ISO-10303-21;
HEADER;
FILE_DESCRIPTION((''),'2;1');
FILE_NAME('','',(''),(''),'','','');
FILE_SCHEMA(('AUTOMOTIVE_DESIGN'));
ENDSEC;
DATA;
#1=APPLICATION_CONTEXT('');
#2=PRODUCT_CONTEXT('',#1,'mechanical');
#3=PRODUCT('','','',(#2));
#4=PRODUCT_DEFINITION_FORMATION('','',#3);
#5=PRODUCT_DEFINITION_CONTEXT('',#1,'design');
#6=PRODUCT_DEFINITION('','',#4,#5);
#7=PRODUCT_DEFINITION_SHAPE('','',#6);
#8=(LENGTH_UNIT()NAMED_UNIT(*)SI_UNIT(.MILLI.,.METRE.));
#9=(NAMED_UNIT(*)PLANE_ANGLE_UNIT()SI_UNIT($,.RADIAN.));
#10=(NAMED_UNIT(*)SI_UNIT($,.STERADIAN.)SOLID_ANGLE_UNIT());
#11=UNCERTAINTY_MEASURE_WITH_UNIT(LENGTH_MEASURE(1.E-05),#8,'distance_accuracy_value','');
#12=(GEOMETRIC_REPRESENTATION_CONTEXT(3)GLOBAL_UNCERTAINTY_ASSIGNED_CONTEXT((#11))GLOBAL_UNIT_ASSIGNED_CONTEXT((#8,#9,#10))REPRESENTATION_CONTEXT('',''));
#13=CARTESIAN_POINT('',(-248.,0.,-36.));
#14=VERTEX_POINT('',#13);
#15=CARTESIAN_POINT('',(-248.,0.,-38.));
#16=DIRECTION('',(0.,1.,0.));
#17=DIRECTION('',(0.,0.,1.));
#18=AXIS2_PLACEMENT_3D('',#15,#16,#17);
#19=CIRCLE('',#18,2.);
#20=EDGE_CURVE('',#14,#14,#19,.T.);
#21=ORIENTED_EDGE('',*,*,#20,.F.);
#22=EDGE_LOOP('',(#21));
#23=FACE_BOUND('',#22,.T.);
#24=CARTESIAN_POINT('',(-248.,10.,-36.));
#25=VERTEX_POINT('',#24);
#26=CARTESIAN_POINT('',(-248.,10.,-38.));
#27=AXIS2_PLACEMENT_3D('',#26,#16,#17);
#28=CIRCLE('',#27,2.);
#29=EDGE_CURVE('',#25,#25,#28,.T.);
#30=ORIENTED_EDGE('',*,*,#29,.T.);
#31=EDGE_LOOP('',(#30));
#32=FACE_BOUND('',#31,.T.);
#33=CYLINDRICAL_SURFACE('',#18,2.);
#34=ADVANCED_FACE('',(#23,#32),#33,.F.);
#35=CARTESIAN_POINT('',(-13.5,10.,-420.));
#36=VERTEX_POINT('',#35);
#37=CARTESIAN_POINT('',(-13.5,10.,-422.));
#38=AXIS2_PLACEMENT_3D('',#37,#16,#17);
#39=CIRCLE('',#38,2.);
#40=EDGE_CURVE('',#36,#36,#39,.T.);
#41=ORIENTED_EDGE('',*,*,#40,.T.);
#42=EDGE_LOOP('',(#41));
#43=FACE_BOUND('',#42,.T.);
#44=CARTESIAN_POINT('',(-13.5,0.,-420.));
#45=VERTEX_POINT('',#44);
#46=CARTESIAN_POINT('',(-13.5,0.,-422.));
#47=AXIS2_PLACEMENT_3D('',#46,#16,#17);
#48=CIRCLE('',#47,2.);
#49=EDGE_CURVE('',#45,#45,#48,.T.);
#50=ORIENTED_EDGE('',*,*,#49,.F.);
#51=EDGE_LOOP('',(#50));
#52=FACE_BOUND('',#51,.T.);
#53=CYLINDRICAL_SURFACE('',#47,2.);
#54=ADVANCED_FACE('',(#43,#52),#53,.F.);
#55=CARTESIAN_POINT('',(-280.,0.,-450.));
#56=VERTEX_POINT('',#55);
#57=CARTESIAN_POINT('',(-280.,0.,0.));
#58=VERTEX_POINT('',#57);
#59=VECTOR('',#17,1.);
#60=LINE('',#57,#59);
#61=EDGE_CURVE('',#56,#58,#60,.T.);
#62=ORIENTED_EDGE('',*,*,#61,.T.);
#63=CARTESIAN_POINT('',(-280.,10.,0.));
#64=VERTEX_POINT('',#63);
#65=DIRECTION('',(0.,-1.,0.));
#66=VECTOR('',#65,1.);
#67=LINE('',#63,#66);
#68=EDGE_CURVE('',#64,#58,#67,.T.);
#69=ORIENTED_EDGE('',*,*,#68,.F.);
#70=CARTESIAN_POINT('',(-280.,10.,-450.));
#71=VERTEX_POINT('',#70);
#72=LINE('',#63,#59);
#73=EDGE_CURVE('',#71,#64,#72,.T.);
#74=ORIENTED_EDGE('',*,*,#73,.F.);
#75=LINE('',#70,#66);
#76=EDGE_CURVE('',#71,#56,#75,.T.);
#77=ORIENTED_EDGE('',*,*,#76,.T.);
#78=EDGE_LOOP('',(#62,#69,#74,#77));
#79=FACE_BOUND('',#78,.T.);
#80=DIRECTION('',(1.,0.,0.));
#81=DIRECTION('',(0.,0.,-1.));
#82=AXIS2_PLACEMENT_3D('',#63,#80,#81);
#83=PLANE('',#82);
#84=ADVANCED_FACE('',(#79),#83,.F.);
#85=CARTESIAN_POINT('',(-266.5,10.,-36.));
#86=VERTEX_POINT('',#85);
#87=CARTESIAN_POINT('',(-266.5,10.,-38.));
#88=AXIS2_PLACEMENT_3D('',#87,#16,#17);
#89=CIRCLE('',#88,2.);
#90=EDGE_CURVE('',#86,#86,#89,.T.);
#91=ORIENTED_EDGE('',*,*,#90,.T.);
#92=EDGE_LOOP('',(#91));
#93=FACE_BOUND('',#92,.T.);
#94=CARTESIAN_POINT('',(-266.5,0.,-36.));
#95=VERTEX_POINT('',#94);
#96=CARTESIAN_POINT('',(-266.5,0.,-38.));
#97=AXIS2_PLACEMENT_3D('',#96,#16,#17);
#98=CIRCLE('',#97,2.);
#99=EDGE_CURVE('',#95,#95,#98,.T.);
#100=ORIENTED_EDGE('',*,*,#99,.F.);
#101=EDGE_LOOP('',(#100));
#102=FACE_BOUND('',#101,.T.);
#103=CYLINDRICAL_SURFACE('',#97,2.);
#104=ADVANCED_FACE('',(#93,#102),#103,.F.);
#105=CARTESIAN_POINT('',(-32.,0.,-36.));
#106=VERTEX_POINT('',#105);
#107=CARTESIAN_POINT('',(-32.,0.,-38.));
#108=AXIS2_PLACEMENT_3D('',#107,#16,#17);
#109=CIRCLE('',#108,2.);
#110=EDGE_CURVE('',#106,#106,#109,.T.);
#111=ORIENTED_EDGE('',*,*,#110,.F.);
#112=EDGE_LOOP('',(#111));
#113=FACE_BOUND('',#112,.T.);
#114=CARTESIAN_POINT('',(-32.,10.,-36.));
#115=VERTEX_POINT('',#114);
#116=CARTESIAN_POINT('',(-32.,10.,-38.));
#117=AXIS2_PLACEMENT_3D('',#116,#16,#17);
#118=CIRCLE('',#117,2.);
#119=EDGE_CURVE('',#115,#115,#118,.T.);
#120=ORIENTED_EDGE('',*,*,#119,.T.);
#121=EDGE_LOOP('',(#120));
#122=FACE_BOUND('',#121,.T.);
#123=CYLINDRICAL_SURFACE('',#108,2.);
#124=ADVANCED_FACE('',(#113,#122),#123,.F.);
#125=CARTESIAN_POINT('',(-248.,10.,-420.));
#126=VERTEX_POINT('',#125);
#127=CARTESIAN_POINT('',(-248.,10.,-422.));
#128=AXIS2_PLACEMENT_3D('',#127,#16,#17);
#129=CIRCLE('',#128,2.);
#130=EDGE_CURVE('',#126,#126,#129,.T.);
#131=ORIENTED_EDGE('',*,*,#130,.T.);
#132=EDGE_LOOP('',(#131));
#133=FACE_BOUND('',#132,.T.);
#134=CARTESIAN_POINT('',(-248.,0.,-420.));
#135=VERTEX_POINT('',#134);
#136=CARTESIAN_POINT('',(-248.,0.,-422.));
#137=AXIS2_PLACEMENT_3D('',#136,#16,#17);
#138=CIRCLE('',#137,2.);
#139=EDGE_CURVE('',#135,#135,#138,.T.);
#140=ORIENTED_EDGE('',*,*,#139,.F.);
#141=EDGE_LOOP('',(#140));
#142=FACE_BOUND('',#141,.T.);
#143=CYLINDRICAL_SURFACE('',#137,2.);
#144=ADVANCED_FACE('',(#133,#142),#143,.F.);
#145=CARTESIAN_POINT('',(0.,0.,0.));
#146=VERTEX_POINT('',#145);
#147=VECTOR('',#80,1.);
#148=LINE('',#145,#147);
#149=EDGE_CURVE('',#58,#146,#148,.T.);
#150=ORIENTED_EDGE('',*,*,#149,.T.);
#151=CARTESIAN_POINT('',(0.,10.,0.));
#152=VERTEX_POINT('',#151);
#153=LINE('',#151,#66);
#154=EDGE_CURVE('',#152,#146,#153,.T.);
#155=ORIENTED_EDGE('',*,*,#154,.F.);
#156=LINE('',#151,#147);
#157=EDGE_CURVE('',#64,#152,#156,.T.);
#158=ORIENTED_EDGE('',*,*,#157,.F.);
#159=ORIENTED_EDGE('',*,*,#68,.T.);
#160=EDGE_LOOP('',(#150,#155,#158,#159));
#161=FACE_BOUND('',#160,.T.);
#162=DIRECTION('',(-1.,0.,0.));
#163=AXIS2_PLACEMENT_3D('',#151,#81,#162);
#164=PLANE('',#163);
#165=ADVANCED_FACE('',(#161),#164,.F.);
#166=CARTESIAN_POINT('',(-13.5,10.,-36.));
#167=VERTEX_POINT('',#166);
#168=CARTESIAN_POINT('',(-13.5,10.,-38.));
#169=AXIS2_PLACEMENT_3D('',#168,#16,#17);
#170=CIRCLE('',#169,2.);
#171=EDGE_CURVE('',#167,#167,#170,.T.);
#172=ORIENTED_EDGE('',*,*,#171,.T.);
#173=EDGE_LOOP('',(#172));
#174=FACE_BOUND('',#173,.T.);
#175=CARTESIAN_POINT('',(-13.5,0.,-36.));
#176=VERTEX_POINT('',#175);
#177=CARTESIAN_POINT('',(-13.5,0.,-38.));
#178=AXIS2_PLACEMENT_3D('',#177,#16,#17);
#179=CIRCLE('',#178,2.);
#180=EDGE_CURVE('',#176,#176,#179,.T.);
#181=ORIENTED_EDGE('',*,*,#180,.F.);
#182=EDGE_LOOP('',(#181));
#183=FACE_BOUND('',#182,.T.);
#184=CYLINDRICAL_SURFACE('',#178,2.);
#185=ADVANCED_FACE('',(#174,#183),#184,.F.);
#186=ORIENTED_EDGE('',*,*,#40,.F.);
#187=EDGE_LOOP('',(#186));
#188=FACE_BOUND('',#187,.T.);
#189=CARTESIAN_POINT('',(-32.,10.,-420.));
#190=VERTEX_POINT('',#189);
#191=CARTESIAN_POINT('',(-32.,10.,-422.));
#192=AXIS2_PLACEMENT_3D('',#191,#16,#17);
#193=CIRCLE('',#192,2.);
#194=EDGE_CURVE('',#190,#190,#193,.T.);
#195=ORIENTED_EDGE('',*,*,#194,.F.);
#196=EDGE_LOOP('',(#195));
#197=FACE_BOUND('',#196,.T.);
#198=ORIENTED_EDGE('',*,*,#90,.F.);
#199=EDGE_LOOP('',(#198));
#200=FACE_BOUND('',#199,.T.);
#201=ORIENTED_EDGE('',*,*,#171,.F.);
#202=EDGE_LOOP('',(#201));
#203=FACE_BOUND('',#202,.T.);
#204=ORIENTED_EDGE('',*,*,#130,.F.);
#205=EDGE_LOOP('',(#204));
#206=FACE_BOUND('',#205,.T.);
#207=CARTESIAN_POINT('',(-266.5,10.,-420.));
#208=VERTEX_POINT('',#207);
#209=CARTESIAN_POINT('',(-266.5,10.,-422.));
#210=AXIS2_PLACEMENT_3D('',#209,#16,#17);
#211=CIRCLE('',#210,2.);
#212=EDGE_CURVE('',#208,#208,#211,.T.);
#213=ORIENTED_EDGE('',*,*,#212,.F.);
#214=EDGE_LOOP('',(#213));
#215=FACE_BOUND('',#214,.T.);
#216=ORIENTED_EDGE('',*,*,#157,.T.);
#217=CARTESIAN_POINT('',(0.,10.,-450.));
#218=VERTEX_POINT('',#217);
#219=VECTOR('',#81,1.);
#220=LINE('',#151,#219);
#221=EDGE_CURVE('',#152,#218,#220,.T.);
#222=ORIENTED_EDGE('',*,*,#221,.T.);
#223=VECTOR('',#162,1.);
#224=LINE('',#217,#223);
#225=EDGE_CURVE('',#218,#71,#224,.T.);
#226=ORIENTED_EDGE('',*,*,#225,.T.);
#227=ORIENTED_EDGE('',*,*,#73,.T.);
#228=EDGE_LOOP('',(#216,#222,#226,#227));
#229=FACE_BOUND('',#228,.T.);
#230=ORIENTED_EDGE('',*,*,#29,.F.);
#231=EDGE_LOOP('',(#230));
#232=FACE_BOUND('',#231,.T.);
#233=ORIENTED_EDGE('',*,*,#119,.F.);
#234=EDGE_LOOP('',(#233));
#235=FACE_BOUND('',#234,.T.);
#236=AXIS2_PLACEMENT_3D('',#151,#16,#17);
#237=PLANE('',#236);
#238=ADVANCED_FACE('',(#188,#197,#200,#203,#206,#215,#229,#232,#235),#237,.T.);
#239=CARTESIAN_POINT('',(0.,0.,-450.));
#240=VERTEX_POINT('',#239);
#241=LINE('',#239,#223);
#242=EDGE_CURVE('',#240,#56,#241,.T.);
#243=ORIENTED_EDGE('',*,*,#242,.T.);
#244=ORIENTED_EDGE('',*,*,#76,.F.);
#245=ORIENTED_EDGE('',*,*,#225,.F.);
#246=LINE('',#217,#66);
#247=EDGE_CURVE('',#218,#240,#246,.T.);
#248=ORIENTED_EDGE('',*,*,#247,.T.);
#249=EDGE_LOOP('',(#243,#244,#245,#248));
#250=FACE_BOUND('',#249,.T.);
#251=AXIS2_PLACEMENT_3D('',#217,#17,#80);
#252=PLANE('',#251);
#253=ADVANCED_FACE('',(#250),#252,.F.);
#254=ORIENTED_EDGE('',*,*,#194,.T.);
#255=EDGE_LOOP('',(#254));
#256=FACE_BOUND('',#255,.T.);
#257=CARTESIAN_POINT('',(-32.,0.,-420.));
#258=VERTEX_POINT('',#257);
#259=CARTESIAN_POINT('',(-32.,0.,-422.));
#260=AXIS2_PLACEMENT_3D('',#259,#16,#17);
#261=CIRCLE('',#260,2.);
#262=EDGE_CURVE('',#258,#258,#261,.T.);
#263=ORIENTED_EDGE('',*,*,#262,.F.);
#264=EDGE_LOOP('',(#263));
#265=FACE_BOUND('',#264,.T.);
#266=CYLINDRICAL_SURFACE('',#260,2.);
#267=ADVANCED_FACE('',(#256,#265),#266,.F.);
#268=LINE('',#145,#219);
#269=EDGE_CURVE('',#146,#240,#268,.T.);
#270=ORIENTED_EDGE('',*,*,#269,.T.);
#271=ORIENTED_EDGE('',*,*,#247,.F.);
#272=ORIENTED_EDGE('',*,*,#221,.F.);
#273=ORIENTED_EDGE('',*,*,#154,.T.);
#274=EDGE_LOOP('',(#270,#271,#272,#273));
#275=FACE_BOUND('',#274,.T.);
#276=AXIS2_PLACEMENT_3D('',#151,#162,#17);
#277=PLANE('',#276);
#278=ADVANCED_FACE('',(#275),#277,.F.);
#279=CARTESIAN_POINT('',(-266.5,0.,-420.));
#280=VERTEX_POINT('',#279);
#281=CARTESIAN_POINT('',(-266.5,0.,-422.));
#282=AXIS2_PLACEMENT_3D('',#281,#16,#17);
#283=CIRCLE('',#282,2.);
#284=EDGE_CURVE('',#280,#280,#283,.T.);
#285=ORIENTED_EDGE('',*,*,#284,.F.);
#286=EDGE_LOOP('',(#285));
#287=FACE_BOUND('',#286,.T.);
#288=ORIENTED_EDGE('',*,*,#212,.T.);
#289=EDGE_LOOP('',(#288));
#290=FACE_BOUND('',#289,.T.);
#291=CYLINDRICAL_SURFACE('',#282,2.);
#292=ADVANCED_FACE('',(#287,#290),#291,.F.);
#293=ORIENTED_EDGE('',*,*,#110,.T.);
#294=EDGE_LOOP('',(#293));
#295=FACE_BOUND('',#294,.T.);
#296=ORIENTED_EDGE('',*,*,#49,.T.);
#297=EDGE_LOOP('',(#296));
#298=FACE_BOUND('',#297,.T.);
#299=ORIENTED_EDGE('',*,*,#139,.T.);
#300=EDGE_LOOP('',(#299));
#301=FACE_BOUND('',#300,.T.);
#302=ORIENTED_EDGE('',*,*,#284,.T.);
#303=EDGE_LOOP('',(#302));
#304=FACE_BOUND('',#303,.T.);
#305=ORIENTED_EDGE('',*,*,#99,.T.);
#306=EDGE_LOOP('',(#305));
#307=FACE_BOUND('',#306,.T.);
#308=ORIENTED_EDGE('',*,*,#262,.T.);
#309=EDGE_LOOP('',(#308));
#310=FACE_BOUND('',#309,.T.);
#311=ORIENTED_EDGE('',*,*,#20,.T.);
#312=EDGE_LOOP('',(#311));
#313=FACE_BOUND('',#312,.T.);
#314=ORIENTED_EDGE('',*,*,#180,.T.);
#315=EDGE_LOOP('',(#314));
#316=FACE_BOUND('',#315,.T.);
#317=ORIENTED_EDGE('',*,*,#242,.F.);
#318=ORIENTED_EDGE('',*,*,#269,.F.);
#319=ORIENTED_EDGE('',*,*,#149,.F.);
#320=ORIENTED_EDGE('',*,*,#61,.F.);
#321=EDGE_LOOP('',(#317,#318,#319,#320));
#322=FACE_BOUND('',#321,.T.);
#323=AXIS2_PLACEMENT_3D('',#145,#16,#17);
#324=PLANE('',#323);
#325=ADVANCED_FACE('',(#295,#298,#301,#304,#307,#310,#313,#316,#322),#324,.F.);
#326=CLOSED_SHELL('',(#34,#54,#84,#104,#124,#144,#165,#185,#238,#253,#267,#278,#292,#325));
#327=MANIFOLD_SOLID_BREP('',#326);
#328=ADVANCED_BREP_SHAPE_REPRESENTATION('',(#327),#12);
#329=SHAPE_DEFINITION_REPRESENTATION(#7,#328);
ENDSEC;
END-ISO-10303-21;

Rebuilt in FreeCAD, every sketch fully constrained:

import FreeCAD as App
import Part
import Sketcher

V = App.Vector
Q = App.Units.Quantity


def add_polygon(sketch, points):
    """Adds a closed chain of lines whose ends are joined by coincident constraints."""
    first, n = sketch.GeometryCount, len(points)
    for a, b in zip(points, points[1:] + points[:1]):
        sketch.addGeometry(Part.LineSegment(App.Vector(*a, 0), App.Vector(*b, 0)), False)
    for i in range(n):
        sketch.addConstraint(Sketcher.Constraint("Coincident", first + i, 2, first + (i + 1) % n, 1))

doc = App.newDocument("Part")
body = doc.addObject("PartDesign::Body", "Body")

sketch1 = body.newObject("Sketcher::SketchObject", "Sketch")
sketch1.AttachmentSupport = (doc.getObject("XZ_Plane"), [""])
sketch1.MapMode = "FlatFace"
add_polygon(sketch1, [(-280, -450), (-280, 0), (0, 0), (0, -450)])
sketch1.addConstraint([
    Sketcher.Constraint("Vertical", 0),
    Sketcher.Constraint("Horizontal", 1),
    Sketcher.Constraint("Vertical", 2),
    Sketcher.Constraint("Horizontal", 3),
    Sketcher.Constraint("Coincident", 1, 2, -1, 1),
    Sketcher.Constraint("DistanceX", 1, 1, 1, 2, Q("280 mm")),
    Sketcher.Constraint("DistanceY", 0, 1, 0, 2, Q("450 mm")),
])
pad1 = body.newObject("PartDesign::Pad", "Pad")
pad1.Profile = sketch1
pad1.Length = 10
pad1.Reversed = True

sketch2 = body.newObject("Sketcher::SketchObject", "Sketch001")
sketch2.AttachmentSupport = (doc.getObject("XZ_Plane"), [""])
sketch2.MapMode = "FlatFace"
sketch2.AttachmentOffset = App.Placement(V(0, 0, -10), App.Rotation())
sketch2.addGeometry([
    Part.Circle(V(-266.5, -38, 0), V(0, 0, 1), 2),
    Part.Circle(V(-248, -38, 0), V(0, 0, 1), 2),
    Part.Circle(V(-32, -38, 0), V(0, 0, 1), 2),
    Part.Circle(V(-13.5, -38, 0), V(0, 0, 1), 2),
    Part.Circle(V(-13.5, -422, 0), V(0, 0, 1), 2),
    Part.Circle(V(-32, -422, 0), V(0, 0, 1), 2),
    Part.Circle(V(-266.5, -422, 0), V(0, 0, 1), 2),
    Part.Circle(V(-248, -422, 0), V(0, 0, 1), 2),
], False)
sketch2.addConstraint([
    Sketcher.Constraint("Equal", 0, 1),
    Sketcher.Constraint("Equal", 1, 2),
    Sketcher.Constraint("Equal", 2, 3),
    Sketcher.Constraint("Equal", 3, 4),
    Sketcher.Constraint("Equal", 4, 5),
    Sketcher.Constraint("Equal", 5, 6),
    Sketcher.Constraint("Equal", 6, 7),
    Sketcher.Constraint("Horizontal", 0, 3, 1, 3),
    Sketcher.Constraint("Horizontal", 1, 3, 2, 3),
    Sketcher.Constraint("Horizontal", 2, 3, 3, 3),
    Sketcher.Constraint("Horizontal", 4, 3, 5, 3),
    Sketcher.Constraint("Horizontal", 5, 3, 6, 3),
    Sketcher.Constraint("Horizontal", 6, 3, 7, 3),
    Sketcher.Constraint("Vertical", 3, 3, 4, 3),
    Sketcher.Constraint("Vertical", 2, 3, 5, 3),
    Sketcher.Constraint("Vertical", 0, 3, 6, 3),
    Sketcher.Constraint("Vertical", 1, 3, 7, 3),
    Sketcher.Constraint("Diameter", 0, Q("4 mm")),
    Sketcher.Constraint("DistanceY", 0, 3, -1, 1, Q("38 mm")),
    Sketcher.Constraint("DistanceX", 1, 3, -1, 1, Q("248 mm")),
    Sketcher.Constraint("DistanceX", 2, 3, -1, 1, Q("32 mm")),
    Sketcher.Constraint("DistanceY", 4, 3, -1, 1, Q("422 mm")),
    Sketcher.Constraint("DistanceX", 0, 3, 3, 3, Q("253 mm")),
    Sketcher.Constraint("DistanceX", 0, 3, -1, 1, Q("266.5 mm")),
])
pocket1 = body.newObject("PartDesign::Pocket", "Pocket")
pocket1.Profile = sketch2
pocket1.Length = 10
pocket1.Reversed = True

doc.recompute()
